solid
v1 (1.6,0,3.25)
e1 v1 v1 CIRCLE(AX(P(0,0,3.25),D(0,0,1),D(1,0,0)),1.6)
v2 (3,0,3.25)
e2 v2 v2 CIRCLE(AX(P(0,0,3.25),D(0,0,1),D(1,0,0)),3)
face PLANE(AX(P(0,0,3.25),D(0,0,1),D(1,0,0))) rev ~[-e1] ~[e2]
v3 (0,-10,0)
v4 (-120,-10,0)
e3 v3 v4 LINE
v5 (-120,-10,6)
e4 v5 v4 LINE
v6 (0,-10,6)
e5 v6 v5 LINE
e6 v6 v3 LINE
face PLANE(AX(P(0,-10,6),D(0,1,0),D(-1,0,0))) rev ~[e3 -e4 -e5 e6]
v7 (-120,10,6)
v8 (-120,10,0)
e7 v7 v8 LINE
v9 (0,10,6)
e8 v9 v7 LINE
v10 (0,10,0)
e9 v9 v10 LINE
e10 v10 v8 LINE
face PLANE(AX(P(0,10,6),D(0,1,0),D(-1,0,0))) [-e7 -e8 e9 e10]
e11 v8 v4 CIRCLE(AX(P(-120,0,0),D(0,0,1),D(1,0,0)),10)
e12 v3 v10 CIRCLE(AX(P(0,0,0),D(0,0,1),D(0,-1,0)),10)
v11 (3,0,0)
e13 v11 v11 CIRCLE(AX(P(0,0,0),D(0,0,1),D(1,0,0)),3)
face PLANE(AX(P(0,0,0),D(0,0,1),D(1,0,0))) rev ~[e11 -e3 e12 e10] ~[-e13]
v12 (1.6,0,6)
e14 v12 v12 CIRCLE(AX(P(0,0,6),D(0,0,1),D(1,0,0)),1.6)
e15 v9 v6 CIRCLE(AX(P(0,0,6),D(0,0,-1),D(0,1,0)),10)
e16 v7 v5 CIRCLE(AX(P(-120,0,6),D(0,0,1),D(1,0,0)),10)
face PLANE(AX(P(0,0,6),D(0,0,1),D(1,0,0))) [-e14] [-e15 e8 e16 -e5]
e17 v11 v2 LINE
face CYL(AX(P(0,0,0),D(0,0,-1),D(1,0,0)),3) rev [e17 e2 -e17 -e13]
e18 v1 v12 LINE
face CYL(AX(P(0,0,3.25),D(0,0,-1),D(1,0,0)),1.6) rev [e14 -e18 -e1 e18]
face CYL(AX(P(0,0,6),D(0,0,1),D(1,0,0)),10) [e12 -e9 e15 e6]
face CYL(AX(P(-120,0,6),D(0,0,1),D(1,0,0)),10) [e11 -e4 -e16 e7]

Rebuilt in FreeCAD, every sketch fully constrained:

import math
import FreeCAD as App
import Part
import Sketcher
Q = App.Units.Quantity

doc = App.newDocument("Part")
body = doc.addObject("PartDesign::Body", "Body")

# Sketch on XY plane
sketch1 = doc.addObject("Sketcher::SketchObject", "Sketch")
body.addObject(sketch1)
sketch1.AttachmentSupport = (doc.XY_Plane, [""])
sketch1.MapMode = "FlatFace"
sketch1.addGeometry(Part.Circle(App.Vector(0, 0, 0), App.Vector(0, 0, 1), 6), False)
sketch1.addGeometry(Part.Circle(App.Vector(0, 0, 0), App.Vector(0, 0, 1), 3), False)
sketch1.addConstraint(Sketcher.Constraint("Coincident", 0, 3, -1, 1))
sketch1.addConstraint(Sketcher.Constraint("Coincident", 1, 3, -1, 1))
sketch1.addConstraint(Sketcher.Constraint("Diameter", 0, Q("12 mm")))
sketch1.addConstraint(Sketcher.Constraint("Diameter", 1, Q("6 mm")))
pad1 = doc.addObject("PartDesign::Pad", "Pad")
body.addObject(pad1)
pad1.Profile = sketch1
pad1.Length = 3.25

# Sketch on XY plane
sketch2 = doc.addObject("Sketcher::SketchObject", "Sketch001")
body.addObject(sketch2)
sketch2.AttachmentSupport = (doc.XY_Plane, [""])
sketch2.MapMode = "FlatFace"
sketch2.AttachmentOffset = App.Placement(App.Vector(0, 0, 3.25), App.Rotation())
sketch2.addGeometry(Part.Circle(App.Vector(0, 0, 0), App.Vector(0, 0, 1), 6), False)
sketch2.addGeometry(Part.Circle(App.Vector(0, 0, 0), App.Vector(0, 0, 1), 1.6), False)
sketch2.addConstraint(Sketcher.Constraint("Coincident", 0, 3, -1, 1))
sketch2.addConstraint(Sketcher.Constraint("Coincident", 1, 3, -1, 1))
sketch2.addConstraint(Sketcher.Constraint("Diameter", 1, Q("3.2 mm")))
sketch2.addConstraint(Sketcher.Constraint("Diameter", 0, Q("12 mm")))
pad2 = doc.addObject("PartDesign::Pad", "Pad001")
body.addObject(pad2)
pad2.Profile = sketch2
pad2.Length = 2.75

# Sketch on XY plane
sketch3 = doc.addObject("Sketcher::SketchObject", "Sketch002")
body.addObject(sketch3)
sketch3.AttachmentSupport = (doc.XY_Plane, [""])
sketch3.MapMode = "FlatFace"
sketch3.AttachmentOffset = App.Placement(App.Vector(0, 0, 6), App.Rotation())
sketch3.addGeometry(Part.ArcOfCircle(Part.Circle(App.Vector(0, 0, 0), App.Vector(0, 0, 1), 10), math.radians(-90), math.radians(90)), False)
sketch3.addGeometry(Part.LineSegment(App.Vector(0, 10, 0), App.Vector(-120, 10, 0)), False)
sketch3.addGeometry(Part.ArcOfCircle(Part.Circle(App.Vector(-120, 0, 0), App.Vector(0, 0, 1), 10), math.radians(90), math.radians(270)), False)
sketch3.addGeometry(Part.LineSegment(App.Vector(-120, -10, 0), App.Vector(0, -10, 0)), False)
sketch3.addGeometry(Part.Circle(App.Vector(0, 0, 0), App.Vector(0, 0, 1), 6), False)
sketch3.addConstraint(Sketcher.Constraint("Tangent", 0, 2, 1, 1))
sketch3.addConstraint(Sketcher.Constraint("Tangent", 1, 2, 2, 1))
sketch3.addConstraint(Sketcher.Constraint("Tangent", 2, 2, 3, 1))
sketch3.addConstraint(Sketcher.Constraint("Tangent", 3, 2, 0, 1))
sketch3.addConstraint(Sketcher.Constraint("Horizontal", 1))
sketch3.addConstraint(Sketcher.Constraint("Horizontal", 3))
sketch3.addConstraint(Sketcher.Constraint("Coincident", 0, 3, -1, 1))
sketch3.addConstraint(Sketcher.Constraint("Coincident", 4, 3, -1, 1))
sketch3.addConstraint(Sketcher.Constraint("Radius", 0, Q("10 mm")))
sketch3.addConstraint(Sketcher.Constraint("DistanceX", 1, 2, 1, 1, Q("120 mm")))
sketch3.addConstraint(Sketcher.Constraint("Diameter", 4, Q("12 mm")))
pad3 = doc.addObject("PartDesign::Pad", "Pad002")
body.addObject(pad3)
pad3.Profile = sketch3
pad3.Length = 6
pad3.Reversed = True

doc.recompute()
